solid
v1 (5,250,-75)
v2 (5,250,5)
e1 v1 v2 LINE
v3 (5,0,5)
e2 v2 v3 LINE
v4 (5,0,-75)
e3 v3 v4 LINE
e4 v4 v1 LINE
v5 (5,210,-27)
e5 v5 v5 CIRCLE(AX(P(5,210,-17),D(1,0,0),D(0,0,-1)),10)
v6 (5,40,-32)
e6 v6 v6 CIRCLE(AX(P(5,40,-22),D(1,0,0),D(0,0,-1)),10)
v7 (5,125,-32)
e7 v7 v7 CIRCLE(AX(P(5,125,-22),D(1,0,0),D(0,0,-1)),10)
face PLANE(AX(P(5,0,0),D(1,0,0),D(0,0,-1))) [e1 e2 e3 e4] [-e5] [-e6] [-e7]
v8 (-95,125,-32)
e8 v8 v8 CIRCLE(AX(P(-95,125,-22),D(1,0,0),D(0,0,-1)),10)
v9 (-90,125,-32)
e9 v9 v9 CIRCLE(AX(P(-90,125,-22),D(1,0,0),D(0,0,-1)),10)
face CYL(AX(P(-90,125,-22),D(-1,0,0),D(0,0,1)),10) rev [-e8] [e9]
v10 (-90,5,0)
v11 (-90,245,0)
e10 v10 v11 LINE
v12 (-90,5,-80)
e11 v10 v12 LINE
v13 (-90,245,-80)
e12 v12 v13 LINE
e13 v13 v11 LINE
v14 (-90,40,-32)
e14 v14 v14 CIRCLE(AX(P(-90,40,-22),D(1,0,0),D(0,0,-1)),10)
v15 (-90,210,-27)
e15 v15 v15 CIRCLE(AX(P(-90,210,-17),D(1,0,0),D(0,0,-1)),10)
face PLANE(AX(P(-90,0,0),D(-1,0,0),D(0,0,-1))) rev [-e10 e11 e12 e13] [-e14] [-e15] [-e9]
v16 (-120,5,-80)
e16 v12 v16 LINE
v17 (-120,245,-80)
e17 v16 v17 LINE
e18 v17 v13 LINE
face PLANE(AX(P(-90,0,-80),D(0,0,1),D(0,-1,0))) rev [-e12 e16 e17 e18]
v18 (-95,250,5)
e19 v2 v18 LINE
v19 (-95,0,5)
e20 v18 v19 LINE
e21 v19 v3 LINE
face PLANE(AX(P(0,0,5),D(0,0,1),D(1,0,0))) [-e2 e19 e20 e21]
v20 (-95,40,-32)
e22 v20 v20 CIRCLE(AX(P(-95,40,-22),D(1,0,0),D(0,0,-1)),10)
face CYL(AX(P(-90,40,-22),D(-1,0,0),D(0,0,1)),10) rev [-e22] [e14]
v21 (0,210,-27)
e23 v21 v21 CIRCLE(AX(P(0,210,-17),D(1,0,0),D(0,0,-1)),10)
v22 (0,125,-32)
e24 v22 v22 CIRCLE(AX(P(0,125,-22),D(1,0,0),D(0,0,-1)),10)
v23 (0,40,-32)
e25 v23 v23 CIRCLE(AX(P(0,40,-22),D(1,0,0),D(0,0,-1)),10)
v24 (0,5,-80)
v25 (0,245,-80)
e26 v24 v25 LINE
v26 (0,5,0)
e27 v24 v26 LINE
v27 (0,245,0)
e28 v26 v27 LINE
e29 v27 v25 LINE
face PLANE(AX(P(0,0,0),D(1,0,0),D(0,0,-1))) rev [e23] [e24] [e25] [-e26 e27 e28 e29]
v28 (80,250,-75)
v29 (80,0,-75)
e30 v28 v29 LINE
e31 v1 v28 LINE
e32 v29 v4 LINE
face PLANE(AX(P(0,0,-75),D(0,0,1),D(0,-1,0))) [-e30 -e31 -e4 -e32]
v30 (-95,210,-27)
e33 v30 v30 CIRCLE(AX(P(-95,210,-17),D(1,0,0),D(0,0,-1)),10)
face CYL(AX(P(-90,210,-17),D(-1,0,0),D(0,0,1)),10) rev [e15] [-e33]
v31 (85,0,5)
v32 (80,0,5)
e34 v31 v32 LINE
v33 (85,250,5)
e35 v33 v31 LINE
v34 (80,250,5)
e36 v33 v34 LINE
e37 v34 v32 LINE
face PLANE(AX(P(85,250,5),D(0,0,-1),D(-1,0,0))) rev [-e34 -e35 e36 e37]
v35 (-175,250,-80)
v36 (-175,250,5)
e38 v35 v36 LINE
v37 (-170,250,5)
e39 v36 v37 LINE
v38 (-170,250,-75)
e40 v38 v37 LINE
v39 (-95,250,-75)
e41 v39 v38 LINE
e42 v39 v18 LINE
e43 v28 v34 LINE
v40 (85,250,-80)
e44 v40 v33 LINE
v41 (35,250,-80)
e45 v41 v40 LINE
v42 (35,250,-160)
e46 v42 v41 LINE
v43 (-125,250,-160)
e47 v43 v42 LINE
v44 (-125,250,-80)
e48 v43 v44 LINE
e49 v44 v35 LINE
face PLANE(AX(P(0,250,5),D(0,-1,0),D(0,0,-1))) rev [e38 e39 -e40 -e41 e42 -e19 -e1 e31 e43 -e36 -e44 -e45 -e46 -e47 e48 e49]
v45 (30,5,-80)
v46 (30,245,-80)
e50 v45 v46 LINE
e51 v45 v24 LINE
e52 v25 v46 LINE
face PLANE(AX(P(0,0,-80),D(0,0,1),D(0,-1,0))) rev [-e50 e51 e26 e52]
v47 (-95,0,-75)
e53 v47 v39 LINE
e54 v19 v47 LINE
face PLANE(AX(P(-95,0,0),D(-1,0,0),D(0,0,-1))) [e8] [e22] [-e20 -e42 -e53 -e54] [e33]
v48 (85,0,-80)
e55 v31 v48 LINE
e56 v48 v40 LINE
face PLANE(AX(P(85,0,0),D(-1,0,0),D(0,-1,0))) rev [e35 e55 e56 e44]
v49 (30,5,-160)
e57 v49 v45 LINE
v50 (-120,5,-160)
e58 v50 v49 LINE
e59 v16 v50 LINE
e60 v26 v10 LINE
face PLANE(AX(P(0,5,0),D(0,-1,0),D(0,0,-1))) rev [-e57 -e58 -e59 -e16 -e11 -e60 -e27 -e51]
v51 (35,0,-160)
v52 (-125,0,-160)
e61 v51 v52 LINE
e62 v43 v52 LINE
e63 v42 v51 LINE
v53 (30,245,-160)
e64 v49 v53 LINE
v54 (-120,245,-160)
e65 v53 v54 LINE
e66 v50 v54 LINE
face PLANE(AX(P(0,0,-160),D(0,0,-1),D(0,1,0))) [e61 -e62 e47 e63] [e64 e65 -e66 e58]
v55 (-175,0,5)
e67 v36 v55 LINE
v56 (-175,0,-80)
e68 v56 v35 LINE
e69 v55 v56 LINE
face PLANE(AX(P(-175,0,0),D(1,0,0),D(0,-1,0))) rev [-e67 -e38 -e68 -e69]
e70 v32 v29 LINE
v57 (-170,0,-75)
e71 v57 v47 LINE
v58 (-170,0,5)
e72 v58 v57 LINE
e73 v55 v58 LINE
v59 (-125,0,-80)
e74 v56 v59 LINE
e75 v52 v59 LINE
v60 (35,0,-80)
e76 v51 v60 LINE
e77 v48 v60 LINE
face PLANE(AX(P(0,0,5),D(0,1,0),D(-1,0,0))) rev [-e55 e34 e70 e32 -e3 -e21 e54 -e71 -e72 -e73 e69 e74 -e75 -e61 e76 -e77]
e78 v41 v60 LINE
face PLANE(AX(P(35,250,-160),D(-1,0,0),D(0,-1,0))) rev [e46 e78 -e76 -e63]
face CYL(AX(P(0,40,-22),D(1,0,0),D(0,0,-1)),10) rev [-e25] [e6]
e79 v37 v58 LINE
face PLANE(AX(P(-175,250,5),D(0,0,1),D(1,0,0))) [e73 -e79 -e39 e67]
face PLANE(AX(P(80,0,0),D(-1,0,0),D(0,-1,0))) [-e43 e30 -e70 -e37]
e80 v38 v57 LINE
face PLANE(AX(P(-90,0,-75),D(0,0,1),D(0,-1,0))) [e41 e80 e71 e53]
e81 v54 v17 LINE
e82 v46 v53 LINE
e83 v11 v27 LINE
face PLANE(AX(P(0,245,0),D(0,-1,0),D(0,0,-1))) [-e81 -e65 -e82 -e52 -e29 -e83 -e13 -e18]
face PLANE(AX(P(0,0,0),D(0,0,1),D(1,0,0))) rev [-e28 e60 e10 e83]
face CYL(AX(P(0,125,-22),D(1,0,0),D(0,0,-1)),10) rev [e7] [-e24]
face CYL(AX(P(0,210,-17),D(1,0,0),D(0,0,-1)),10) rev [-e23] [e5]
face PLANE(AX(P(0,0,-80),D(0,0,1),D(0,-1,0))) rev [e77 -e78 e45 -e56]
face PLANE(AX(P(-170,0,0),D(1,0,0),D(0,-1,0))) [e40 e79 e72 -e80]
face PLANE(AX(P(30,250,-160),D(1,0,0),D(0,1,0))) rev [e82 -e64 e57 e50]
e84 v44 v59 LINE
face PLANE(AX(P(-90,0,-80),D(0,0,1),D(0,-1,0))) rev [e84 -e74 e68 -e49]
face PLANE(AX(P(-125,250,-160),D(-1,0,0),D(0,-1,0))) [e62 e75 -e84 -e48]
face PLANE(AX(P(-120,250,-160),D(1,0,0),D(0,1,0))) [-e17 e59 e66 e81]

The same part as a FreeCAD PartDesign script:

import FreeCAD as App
import Part
import Sketcher
from FreeCAD import Vector

doc = App.newDocument("Part")
body = doc.addObject("PartDesign::Body", "Body")

# Sketch on XY plane
sketch1 = body.newObject("Sketcher::SketchObject", "Sketch")
sketch1.AttachmentSupport = (doc.getObject("XY_Plane"), [""])
sketch1.MapMode = "FlatFace"
sketch1.addGeometry([
    Part.LineSegment(Vector(-45, 250, 0), Vector(-45, 0, 0)),
    Part.LineSegment(Vector(-45, 0, 0), Vector(0, 0, 0)),
    Part.LineSegment(Vector(0, 0, 0), Vector(0, 250, 0)),
    Part.LineSegment(Vector(0, 250, 0), Vector(-45, 250, 0)),
], False)
sketch1.addConstraint([
    Sketcher.Constraint("Coincident", 0, 2, 1, 1),
    Sketcher.Constraint("Coincident", 1, 2, 2, 1),
    Sketcher.Constraint("Coincident", 2, 2, 3, 1),
    Sketcher.Constraint("Coincident", 3, 2, 0, 1),
    Sketcher.Constraint("Vertical", 0),
    Sketcher.Constraint("Horizontal", 1),
    Sketcher.Constraint("Vertical", 2),
    Sketcher.Constraint("Horizontal", 3),
    Sketcher.Constraint("Coincident", 1, 2, -1, 1),
    Sketcher.Constraint("DistanceX", 1, 1, 1, 2, 45.0),
    Sketcher.Constraint("DistanceY", 0, 2, 0, 1, 250.0),
])
pad1 = body.newObject("PartDesign::Pad", "Pad")
pad1.Profile = sketch1
pad1.Length = 5

# Sketch on YZ plane
sketch2 = body.newObject("Sketcher::SketchObject", "Sketch001")
sketch2.AttachmentSupport = (doc.getObject("YZ_Plane"), [""])
sketch2.MapMode = "FlatFace"
sketch2.addGeometry([
    Part.LineSegment(Vector(250, 5, 0), Vector(0, 5, 0)),
    Part.LineSegment(Vector(0, 5, 0), Vector(0, -75, 0)),
    Part.LineSegment(Vector(0, -75, 0), Vector(250, -75, 0)),
    Part.LineSegment(Vector(250, -75, 0), Vector(250, 5, 0)),
], False)
sketch2.addConstraint([
    Sketcher.Constraint("Coincident", 0, 2, 1, 1),
    Sketcher.Constraint("Coincident", 1, 2, 2, 1),
    Sketcher.Constraint("Coincident", 2, 2, 3, 1),
    Sketcher.Constraint("Coincident", 3, 2, 0, 1),
    Sketcher.Constraint("Horizontal", 0),
    Sketcher.Constraint("Vertical", 1),
    Sketcher.Constraint("Horizontal", 2),
    Sketcher.Constraint("Vertical", 3),
    Sketcher.Constraint("PointOnObject", 0, 2, -2),
    Sketcher.Constraint("DistanceX", 0, 2, 0, 1, 250.0),
    Sketcher.Constraint("DistanceY", 1, 2, 1, 1, 80.0),
    Sketcher.Constraint("DistanceY", -1, 1, 0, 2, 5.0),
])
pad2 = body.newObject("PartDesign::Pad", "Pad001")
pad2.Profile = sketch2
pad2.Length = 5

# Sketch on XY plane
sketch3 = body.newObject("Sketcher::SketchObject", "Sketch002")
sketch3.AttachmentSupport = (doc.getObject("XY_Plane"), [""])
sketch3.MapMode = "FlatFace"
sketch3.AttachmentOffset = App.Placement(Vector(0, 0, -75), App.Rotation())
sketch3.addGeometry([
    Part.LineSegment(Vector(80, 250, 0), Vector(80, 0, 0)),
    Part.LineSegment(Vector(80, 0, 0), Vector(0, 0, 0)),
    Part.LineSegment(Vector(0, 0, 0), Vector(0, 250, 0)),
    Part.LineSegment(Vector(0, 250, 0), Vector(80, 250, 0)),
], False)
sketch3.addConstraint([
    Sketcher.Constraint("Coincident", 0, 2, 1, 1),
    Sketcher.Constraint("Coincident", 1, 2, 2, 1),
    Sketcher.Constraint("Coincident", 2, 2, 3, 1),
    Sketcher.Constraint("Coincident", 3, 2, 0, 1),
    Sketcher.Constraint("Vertical", 0),
    Sketcher.Constraint("Horizontal", 1),
    Sketcher.Constraint("Vertical", 2),
    Sketcher.Constraint("Horizontal", 3),
    Sketcher.Constraint("Coincident", 1, 2, -1, 1),
    Sketcher.Constraint("DistanceX", 1, 2, 1, 1, 80.0),
    Sketcher.Constraint("DistanceY", 0, 2, 0, 1, 250.0),
])
pad3 = body.newObject("PartDesign::Pad", "Pad002")
pad3.Profile = sketch3
pad3.Length = 5
pad3.Reversed = True

# Sketch on YZ plane
sketch4 = body.newObject("Sketcher::SketchObject", "Sketch003")
sketch4.AttachmentSupport = (doc.getObject("YZ_Plane"), [""])
sketch4.MapMode = "FlatFace"
sketch4.AttachmentOffset = App.Placement(Vector(0, 0, 80), App.Rotation())
sketch4.addGeometry([
    Part.LineSegment(Vector(250, 5, 0), Vector(0, 5, 0)),
    Part.LineSegment(Vector(0, 5, 0), Vector(0, -80, 0)),
    Part.LineSegment(Vector(0, -80, 0), Vector(250, -80, 0)),
    Part.LineSegment(Vector(250, -80, 0), Vector(250, 5, 0)),
], False)
sketch4.addConstraint([
    Sketcher.Constraint("Coincident", 0, 2, 1, 1),
    Sketcher.Constraint("Coincident", 1, 2, 2, 1),
    Sketcher.Constraint("Coincident", 2, 2, 3, 1),
    Sketcher.Constraint("Coincident", 3, 2, 0, 1),
    Sketcher.Constraint("Horizontal", 0),
    Sketcher.Constraint("Vertical", 1),
    Sketcher.Constraint("Horizontal", 2),
    Sketcher.Constraint("Vertical", 3),
    Sketcher.Constraint("PointOnObject", 0, 2, -2),
    Sketcher.Constraint("DistanceX", 0, 2, 0, 1, 250.0),
    Sketcher.Constraint("DistanceY", 1, 2, 1, 1, 85.0),
    Sketcher.Constraint("DistanceY", -1, 1, 0, 2, 5.0),
])
pad4 = body.newObject("PartDesign::Pad", "Pad003")
pad4.Profile = sketch4
pad4.Length = 5

# Sketch on YZ plane
sketch5 = body.newObject("Sketcher::SketchObject", "Sketch004")
sketch5.AttachmentSupport = (doc.getObject("YZ_Plane"), [""])
sketch5.MapMode = "FlatFace"
sketch5.AttachmentOffset = App.Placement(Vector(0, 0, 5), App.Rotation())
sketch5.addGeometry([
    Part.Circle(Vector(40, -22, 0), Vector(0, 0, 1), 10),
    Part.Circle(Vector(125, -22, 0), Vector(0, 0, 1), 10),
    Part.Circle(Vector(210, -17, 0), Vector(0, 0, 1), 10),
], False)
sketch5.addConstraint([
    Sketcher.Constraint("Equal", 0, 1),
    Sketcher.Constraint("Equal", 1, 2),
    Sketcher.Constraint("Horizontal", 0, 3, 1, 3),
    Sketcher.Constraint("Diameter", 0, 20.0),
    Sketcher.Constraint("DistanceX", -1, 1, 0, 3, 40.0),
    Sketcher.Constraint("DistanceY", 0, 3, -1, 1, 22.0),
    Sketcher.Constraint("DistanceX", -1, 1, 1, 3, 125.0),
    Sketcher.Constraint("DistanceX", -1, 1, 2, 3, 210.0),
    Sketcher.Constraint("DistanceY", 2, 3, -1, 1, 17.0),
])
pocket1 = body.newObject("PartDesign::Pocket", "Pocket")
pocket1.Profile = sketch5
pocket1.Length = 5

# Sketch on XY plane
sketch6 = body.newObject("Sketcher::SketchObject", "Sketch005")
sketch6.AttachmentSupport = (doc.getObject("XY_Plane"), [""])
sketch6.MapMode = "FlatFace"
sketch6.AttachmentOffset = App.Placement(Vector(0, 0, -80), App.Rotation())
sketch6.addGeometry([
    Part.LineSegment(Vector(35, 250, 0), Vector(35, 0, 0)),
    Part.LineSegment(Vector(35, 0, 0), Vector(30, 0, 0)),
    Part.LineSegment(Vector(30, 0, 0), Vector(30, 250, 0)),
    Part.LineSegment(Vector(30, 250, 0), Vector(35, 250, 0)),
], False)
sketch6.addConstraint([
    Sketcher.Constraint("Coincident", 0, 2, 1, 1),
    Sketcher.Constraint("Coincident", 1, 2, 2, 1),
    Sketcher.Constraint("Coincident", 2, 2, 3, 1),
    Sketcher.Constraint("Coincident", 3, 2, 0, 1),
    Sketcher.Constraint("Vertical", 0),
    Sketcher.Constraint("Horizontal", 1),
    Sketcher.Constraint("Vertical", 2),
    Sketcher.Constraint("Horizontal", 3),
    Sketcher.Constraint("PointOnObject", 0, 2, -1),
    Sketcher.Constraint("DistanceX", 1, 2, 1, 1, 5.0),
    Sketcher.Constraint("DistanceY", 0, 2, 0, 1, 250.0),
    Sketcher.Constraint("DistanceX", -1, 1, 0, 2, 35.0),
])
pad5 = body.newObject("PartDesign::Pad", "Pad004")
pad5.Profile = sketch6
pad5.Length = 80
pad5.Reversed = True
doc.recompute()

datumplane = body.newObject("PartDesign::Plane", "DatumPlane")
datumplane.AttachmentSupport = (doc.getObject("YZ_Plane"), [""])
datumplane.MapMode = "FlatFace"
datumplane.AttachmentOffset = App.Placement(Vector(0, 0, -45), App.Rotation())
mirrored = body.newObject("PartDesign::Mirrored", "Mirrored")
mirrored.Originals = [pad1, pad2, pad3, pad4, pocket1, pad5]
mirrored.MirrorPlane = (datumplane, [""])
body.Tip = mirrored

# Sketch on XZ plane
sketch7 = body.newObject("Sketcher::SketchObject", "Sketch006")
sketch7.AttachmentSupport = (doc.getObject("XZ_Plane"), [""])
sketch7.MapMode = "FlatFace"
sketch7.addGeometry([
    Part.LineSegment(Vector(30, -160, 0), Vector(30, -80, 0)),  # 0
    Part.LineSegment(Vector(30, -80, 0), Vector(0, -80, 0)),  # 1
    Part.LineSegment(Vector(0, -80, 0), Vector(0, 0, 0)),  # 2
    Part.LineSegment(Vector(0, 0, 0), Vector(-90, 0, 0)),  # 3
    Part.LineSegment(Vector(-90, 0, 0), Vector(-90, -80, 0)),  # 4
    Part.LineSegment(Vector(-90, -80, 0), Vector(-120, -80, 0)),  # 5
    Part.LineSegment(Vector(-120, -80, 0), Vector(-120, -160, 0)),  # 6
    Part.LineSegment(Vector(-120, -160, 0), Vector(30, -160, 0)),  # 7
], False)
sketch7.addConstraint([
    Sketcher.Constraint("Coincident", 0, 2, 1, 1),
    Sketcher.Constraint("Coincident", 1, 2, 2, 1),
    Sketcher.Constraint("Coincident", 2, 2, 3, 1),
    Sketcher.Constraint("Coincident", 3, 2, 4, 1),
    Sketcher.Constraint("Coincident", 4, 2, 5, 1),
    Sketcher.Constraint("Coincident", 5, 2, 6, 1),
    Sketcher.Constraint("Coincident", 6, 2, 7, 1),
    Sketcher.Constraint("Coincident", 7, 2, 0, 1),
    Sketcher.Constraint("Vertical", 0),
    Sketcher.Constraint("Horizontal", 1),
    Sketcher.Constraint("Vertical", 2),
    Sketcher.Constraint("Horizontal", 3),
    Sketcher.Constraint("Vertical", 4),
    Sketcher.Constraint("Horizontal", 5),
    Sketcher.Constraint("Vertical", 6),
    Sketcher.Constraint("Horizontal", 7),
    Sketcher.Constraint("Coincident", 2, 2, -1, 1),
    Sketcher.Constraint("Horizontal", 1, 2, 4, 2),
    Sketcher.Constraint("Equal", 1, 5),
    Sketcher.Constraint("Equal", 0, 2),
    Sketcher.Constraint("DistanceX", 1, 2, 1, 1, 30.0),
    Sketcher.Constraint("DistanceX", 3, 2, 3, 1, 90.0),
    Sketcher.Constraint("DistanceY", 0, 1, 0, 2, 80.0),
])
pad6 = body.newObject("PartDesign::Pad", "Pad005")
pad6.Profile = sketch7
pad6.Length = 5
pad6.Reversed = True

# Sketch on XZ plane
sketch8 = body.newObject("Sketcher::SketchObject", "Sketch007")
sketch8.AttachmentSupport = (doc.getObject("XZ_Plane"), [""])
sketch8.MapMode = "FlatFace"
sketch8.AttachmentOffset = App.Placement(Vector(0, 0, -250), App.Rotation())
sketch8.addGeometry([
    Part.LineSegment(Vector(-120, -160, 0), Vector(-120, -80, 0)),  # 0
    Part.LineSegment(Vector(-120, -80, 0), Vector(-90, -80, 0)),  # 1
    Part.LineSegment(Vector(-90, -80, 0), Vector(-90, 0, 0)),  # 2
    Part.LineSegment(Vector(-90, 0, 0), Vector(0, 0, 0)),  # 3
    Part.LineSegment(Vector(0, 0, 0), Vector(0, -80, 0)),  # 4
    Part.LineSegment(Vector(0, -80, 0), Vector(30, -80, 0)),  # 5
    Part.LineSegment(Vector(30, -80, 0), Vector(30, -160, 0)),  # 6
    Part.LineSegment(Vector(30, -160, 0), Vector(-120, -160, 0)),  # 7
], False)
sketch8.addConstraint([
    Sketcher.Constraint("Coincident", 0, 2, 1, 1),
    Sketcher.Constraint("Coincident", 1, 2, 2, 1),
    Sketcher.Constraint("Coincident", 2, 2, 3, 1),
    Sketcher.Constraint("Coincident", 3, 2, 4, 1),
    Sketcher.Constraint("Coincident", 4, 2, 5, 1),
    Sketcher.Constraint("Coincident", 5, 2, 6, 1),
    Sketcher.Constraint("Coincident", 6, 2, 7, 1),
    Sketcher.Constraint("Coincident", 7, 2, 0, 1),
    Sketcher.Constraint("Vertical", 0),
    Sketcher.Constraint("Horizontal", 1),
    Sketcher.Constraint("Vertical", 2),
    Sketcher.Constraint("Horizontal", 3),
    Sketcher.Constraint("Vertical", 4),
    Sketcher.Constraint("Horizontal", 5),
    Sketcher.Constraint("Vertical", 6),
    Sketcher.Constraint("Horizontal", 7),
    Sketcher.Constraint("Coincident", 3, 2, -1, 1),
    Sketcher.Constraint("Horizontal", 1, 2, 4, 2),
    Sketcher.Constraint("Equal", 1, 5),
    Sketcher.Constraint("Equal", 0, 2),
    Sketcher.Constraint("DistanceX", 1, 1, 1, 2, 30.0),
    Sketcher.Constraint("DistanceX", 3, 1, 3, 2, 90.0),
    Sketcher.Constraint("DistanceY", 0, 1, 0, 2, 80.0),
])
pad7 = body.newObject("PartDesign::Pad", "Pad006")
pad7.Profile = sketch8
pad7.Length = 5

doc.recompute()
